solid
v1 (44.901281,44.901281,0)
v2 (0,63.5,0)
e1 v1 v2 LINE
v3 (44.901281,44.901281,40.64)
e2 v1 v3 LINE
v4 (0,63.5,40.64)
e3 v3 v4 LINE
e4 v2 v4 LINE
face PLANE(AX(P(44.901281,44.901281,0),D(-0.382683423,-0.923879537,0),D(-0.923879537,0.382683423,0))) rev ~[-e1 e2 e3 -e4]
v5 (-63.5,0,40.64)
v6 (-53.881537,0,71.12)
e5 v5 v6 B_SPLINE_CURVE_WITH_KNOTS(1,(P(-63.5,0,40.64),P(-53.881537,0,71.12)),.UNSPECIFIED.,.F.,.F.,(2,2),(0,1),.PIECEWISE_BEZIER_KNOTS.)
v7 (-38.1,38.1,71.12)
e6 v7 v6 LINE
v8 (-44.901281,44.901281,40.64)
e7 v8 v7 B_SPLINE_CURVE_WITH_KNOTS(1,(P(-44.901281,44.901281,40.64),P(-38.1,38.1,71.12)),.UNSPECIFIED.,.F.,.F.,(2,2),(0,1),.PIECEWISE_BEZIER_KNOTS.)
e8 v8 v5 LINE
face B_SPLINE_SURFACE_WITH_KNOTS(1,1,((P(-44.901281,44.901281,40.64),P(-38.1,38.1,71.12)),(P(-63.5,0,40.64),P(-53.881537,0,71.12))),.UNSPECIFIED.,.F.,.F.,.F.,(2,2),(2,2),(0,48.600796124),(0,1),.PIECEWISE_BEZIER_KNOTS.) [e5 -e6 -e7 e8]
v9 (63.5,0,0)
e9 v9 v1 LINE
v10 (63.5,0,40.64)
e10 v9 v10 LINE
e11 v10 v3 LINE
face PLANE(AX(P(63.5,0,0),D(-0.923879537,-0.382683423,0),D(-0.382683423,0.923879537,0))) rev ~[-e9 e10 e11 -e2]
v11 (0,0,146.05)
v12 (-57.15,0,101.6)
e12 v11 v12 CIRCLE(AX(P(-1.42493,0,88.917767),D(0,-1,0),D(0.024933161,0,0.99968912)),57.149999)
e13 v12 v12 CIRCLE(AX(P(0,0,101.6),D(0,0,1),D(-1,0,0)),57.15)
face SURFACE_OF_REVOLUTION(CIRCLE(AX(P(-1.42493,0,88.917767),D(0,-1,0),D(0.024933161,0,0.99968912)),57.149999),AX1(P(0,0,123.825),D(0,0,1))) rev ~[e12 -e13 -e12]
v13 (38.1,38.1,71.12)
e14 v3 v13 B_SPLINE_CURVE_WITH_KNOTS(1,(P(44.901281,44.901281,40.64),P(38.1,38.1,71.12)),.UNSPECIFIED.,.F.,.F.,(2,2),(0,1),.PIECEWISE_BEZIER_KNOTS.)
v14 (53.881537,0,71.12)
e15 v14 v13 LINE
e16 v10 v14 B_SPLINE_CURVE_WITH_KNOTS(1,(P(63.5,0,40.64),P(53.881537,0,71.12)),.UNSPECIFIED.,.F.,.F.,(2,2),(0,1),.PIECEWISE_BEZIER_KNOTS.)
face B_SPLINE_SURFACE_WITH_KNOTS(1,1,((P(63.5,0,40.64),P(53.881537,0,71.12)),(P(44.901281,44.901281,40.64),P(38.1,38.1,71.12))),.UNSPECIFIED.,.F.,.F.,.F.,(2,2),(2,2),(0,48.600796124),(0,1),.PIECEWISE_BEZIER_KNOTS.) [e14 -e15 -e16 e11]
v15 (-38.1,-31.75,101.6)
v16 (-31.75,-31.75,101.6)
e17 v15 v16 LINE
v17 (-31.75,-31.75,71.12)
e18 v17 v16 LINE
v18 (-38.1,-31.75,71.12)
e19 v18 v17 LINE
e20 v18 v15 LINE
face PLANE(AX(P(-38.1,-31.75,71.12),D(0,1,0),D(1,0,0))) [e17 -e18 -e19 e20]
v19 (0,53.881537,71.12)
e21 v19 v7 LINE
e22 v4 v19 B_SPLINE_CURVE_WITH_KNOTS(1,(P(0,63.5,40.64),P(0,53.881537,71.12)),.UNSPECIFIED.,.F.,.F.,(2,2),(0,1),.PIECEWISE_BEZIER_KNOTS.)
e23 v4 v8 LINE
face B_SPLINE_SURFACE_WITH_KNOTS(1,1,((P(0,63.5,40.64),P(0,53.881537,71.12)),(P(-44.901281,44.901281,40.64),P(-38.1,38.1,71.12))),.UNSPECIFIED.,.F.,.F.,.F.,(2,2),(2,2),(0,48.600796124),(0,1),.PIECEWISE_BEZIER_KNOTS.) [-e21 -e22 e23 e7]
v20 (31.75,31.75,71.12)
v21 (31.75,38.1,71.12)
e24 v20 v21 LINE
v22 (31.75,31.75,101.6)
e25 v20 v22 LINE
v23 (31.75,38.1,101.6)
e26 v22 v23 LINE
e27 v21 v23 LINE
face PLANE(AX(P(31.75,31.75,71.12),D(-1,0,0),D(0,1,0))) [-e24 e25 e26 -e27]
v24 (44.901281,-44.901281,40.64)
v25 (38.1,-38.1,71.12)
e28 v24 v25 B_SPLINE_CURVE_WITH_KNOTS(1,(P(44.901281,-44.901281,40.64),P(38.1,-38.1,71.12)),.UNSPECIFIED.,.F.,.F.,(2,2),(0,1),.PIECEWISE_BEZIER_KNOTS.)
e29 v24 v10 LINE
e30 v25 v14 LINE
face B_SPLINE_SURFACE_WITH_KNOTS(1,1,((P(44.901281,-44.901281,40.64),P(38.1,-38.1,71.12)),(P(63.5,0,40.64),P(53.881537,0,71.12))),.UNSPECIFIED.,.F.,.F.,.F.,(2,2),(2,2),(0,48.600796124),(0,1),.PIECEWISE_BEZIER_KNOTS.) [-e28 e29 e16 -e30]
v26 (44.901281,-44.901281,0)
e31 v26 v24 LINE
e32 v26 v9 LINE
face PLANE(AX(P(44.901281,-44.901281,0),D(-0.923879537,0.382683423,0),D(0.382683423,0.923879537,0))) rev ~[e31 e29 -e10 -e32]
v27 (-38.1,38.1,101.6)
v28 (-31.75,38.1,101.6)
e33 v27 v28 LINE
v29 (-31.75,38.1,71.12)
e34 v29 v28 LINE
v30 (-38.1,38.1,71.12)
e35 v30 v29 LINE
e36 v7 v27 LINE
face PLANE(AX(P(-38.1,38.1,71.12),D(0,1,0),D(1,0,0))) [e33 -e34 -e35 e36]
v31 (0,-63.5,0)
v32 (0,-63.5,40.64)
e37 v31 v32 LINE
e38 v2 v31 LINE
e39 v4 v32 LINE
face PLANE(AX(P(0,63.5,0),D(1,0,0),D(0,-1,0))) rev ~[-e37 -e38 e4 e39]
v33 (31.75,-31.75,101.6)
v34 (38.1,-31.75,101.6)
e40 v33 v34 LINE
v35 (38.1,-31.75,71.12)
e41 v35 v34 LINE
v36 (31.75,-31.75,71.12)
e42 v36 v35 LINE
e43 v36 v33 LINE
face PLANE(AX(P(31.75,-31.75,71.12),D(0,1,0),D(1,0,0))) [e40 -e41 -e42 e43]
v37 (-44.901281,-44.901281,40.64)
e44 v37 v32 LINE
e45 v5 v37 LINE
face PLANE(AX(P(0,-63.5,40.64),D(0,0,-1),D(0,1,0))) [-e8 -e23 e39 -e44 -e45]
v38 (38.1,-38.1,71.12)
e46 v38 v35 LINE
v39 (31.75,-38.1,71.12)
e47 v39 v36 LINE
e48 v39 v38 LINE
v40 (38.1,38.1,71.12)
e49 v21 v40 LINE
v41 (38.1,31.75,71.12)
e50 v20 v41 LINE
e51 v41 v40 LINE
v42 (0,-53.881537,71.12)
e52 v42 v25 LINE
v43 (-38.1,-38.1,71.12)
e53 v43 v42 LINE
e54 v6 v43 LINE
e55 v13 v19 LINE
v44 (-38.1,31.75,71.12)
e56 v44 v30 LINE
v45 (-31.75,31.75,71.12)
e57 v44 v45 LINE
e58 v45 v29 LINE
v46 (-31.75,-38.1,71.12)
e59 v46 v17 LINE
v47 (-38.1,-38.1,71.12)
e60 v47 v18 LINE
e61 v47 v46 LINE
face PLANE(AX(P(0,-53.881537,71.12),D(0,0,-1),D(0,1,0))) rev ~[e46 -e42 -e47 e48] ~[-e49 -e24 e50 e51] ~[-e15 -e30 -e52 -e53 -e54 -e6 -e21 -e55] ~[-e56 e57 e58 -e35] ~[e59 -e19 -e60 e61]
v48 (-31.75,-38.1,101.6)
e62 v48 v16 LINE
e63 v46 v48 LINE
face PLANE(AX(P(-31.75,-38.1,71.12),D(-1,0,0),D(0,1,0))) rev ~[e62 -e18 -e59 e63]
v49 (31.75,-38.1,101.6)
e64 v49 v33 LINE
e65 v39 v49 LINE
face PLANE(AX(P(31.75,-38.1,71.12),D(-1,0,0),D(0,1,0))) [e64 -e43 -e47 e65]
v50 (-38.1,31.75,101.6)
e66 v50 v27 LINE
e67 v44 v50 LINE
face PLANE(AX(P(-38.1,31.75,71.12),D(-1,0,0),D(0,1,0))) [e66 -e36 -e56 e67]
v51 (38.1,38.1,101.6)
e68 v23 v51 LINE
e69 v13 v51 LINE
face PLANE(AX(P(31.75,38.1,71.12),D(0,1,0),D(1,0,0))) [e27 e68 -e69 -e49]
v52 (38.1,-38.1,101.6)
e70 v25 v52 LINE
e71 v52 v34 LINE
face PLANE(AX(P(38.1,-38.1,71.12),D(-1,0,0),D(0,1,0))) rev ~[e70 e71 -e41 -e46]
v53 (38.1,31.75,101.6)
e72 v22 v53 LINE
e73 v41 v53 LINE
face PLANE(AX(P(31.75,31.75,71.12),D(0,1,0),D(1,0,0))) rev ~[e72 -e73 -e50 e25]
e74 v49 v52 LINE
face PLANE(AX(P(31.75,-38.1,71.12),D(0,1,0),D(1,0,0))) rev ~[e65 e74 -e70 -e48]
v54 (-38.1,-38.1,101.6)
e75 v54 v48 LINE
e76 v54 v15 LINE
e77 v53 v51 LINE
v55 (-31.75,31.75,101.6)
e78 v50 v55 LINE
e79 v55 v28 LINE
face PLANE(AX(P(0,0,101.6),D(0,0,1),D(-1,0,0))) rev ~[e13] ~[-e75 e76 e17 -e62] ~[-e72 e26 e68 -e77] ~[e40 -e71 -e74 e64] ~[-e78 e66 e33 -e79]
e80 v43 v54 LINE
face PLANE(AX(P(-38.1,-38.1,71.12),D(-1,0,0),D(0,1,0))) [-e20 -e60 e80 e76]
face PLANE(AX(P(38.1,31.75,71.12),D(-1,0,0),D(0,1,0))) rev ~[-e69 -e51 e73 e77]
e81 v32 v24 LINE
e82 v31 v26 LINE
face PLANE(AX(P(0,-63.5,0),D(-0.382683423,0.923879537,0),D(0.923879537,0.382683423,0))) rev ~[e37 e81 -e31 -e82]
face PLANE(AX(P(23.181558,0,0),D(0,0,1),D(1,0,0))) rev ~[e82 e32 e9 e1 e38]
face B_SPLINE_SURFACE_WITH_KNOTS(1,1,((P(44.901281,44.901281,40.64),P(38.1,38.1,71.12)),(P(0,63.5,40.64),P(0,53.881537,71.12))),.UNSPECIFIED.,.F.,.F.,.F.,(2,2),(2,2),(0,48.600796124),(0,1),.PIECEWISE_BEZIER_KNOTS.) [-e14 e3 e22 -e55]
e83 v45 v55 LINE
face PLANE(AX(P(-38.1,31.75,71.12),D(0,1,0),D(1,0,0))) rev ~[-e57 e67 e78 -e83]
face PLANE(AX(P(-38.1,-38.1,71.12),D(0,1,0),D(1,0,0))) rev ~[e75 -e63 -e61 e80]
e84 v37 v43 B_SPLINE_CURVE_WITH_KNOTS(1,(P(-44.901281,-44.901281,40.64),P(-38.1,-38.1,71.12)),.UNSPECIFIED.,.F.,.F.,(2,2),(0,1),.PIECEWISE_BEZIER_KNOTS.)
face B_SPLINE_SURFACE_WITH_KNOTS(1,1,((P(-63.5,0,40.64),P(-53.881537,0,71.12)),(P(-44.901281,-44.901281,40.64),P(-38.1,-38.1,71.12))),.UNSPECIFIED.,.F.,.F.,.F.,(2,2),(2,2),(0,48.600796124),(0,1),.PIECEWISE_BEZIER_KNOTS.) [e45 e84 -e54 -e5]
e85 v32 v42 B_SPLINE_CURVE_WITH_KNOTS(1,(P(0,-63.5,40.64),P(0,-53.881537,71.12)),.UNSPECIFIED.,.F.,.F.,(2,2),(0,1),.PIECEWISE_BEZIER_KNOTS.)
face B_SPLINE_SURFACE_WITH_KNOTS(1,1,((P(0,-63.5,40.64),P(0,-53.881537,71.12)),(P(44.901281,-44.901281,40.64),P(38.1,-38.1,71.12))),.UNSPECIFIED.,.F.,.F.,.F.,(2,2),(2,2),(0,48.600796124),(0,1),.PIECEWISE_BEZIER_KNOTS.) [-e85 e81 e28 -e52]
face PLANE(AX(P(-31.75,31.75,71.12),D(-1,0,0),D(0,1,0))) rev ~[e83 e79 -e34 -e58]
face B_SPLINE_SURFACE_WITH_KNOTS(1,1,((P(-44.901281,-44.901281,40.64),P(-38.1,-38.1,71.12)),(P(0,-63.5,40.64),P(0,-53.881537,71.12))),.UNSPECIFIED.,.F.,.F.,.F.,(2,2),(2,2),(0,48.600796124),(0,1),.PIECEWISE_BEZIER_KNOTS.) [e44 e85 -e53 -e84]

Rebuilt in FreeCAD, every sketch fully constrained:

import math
import FreeCAD as App
import Part
import Sketcher

V = App.Vector
Q = App.Units.Quantity


def add_polygon(sketch, points):
    """Adds a closed chain of lines whose ends are joined by coincident constraints."""
    first, n = sketch.GeometryCount, len(points)
    for a, b in zip(points, points[1:] + points[:1]):
        sketch.addGeometry(Part.LineSegment(App.Vector(*a, 0), App.Vector(*b, 0)), False)
    for i in range(n):
        sketch.addConstraint(Sketcher.Constraint("Coincident", first + i, 2, first + (i + 1) % n, 1))

doc = App.newDocument("Part")
body = doc.addObject("PartDesign::Body", "Body")

# Sketch on XY plane
sketch1 = doc.addObject("Sketcher::SketchObject", "Sketch")
body.addObject(sketch1)
sketch1.AttachmentSupport = (doc.XY_Plane, [""])
sketch1.MapMode = "FlatFace"
add_polygon(sketch1, [(45, 45), (0, 64), (0, -64), (45, -45), (64, 0)])  # lines 0-4
sketch1.addConstraint(Sketcher.Constraint("Vertical", 1))
sketch1.addConstraint(Sketcher.Constraint("Symmetric", 0, 2, 1, 2, -1, 1))
sketch1.addConstraint(Sketcher.Constraint("Symmetric", 2, 2, 4, 2, -1))
sketch1.addConstraint(Sketcher.Constraint("PointOnObject", 3, 2, -1))
sketch1.addConstraint(Sketcher.Constraint("Perpendicular", 0, 3))
sketch1.addConstraint(Sketcher.Constraint("Equal", 2, 3))
sketch1.addConstraint(Sketcher.Constraint("DistanceY", 1, 2, 1, 1, Q("5 in")))
sketch1.addConstraint(Sketcher.Constraint("Angle", 0, Q("157.500001 deg")))
pad1 = doc.addObject("PartDesign::Pad", "Pad")
body.addObject(pad1)
pad1.Profile = sketch1
pad1.Length = Q("1.6 in")

# Sketch on XY plane
sketch2 = doc.addObject("Sketcher::SketchObject", "Sketch001")
body.addObject(sketch2)
sketch2.AttachmentSupport = (doc.XY_Plane, [""])
sketch2.MapMode = "FlatFace"
sketch2.AttachmentOffset = App.Placement(V(0, 0, 1.6 * 25.4), App.Rotation())
add_polygon(sketch2, [(0, -64), (45, -45), (64, 0), (45, 45), (0, 64), (-45, 45), (-64, 0), (-45, -45)])  # lines 0-7
sketch2.addConstraint(Sketcher.Constraint("Symmetric", 0, 2, 4, 2, -1, 1))
sketch2.addConstraint(Sketcher.Constraint("Symmetric", 1, 2, 5, 2, -1, 1))
sketch2.addConstraint(Sketcher.Constraint("Symmetric", 2, 2, 6, 2, -1, 1))
sketch2.addConstraint(Sketcher.Constraint("Symmetric", 3, 2, 7, 2, -1, 1))
sketch2.addConstraint(Sketcher.Constraint("Symmetric", 2, 2, 4, 2, -2))
sketch2.addConstraint(Sketcher.Constraint("PointOnObject", 1, 2, -1))
sketch2.addConstraint(Sketcher.Constraint("PointOnObject", 3, 2, -2))
sketch2.addConstraint(Sketcher.Constraint("Perpendicular", 0, 2))
sketch2.addConstraint(Sketcher.Constraint("Equal", 0, 1))
sketch2.addConstraint(Sketcher.Constraint("DistanceX", 5, 2, 1, 2, Q("5 in")))
sketch2.addConstraint(Sketcher.Constraint("Angle", 0, Q("22.499999 deg")))

# Sketch on XY plane
sketch3 = doc.addObject("Sketcher::SketchObject", "Sketch002")
body.addObject(sketch3)
sketch3.AttachmentSupport = (doc.XY_Plane, [""])
sketch3.MapMode = "FlatFace"
sketch3.AttachmentOffset = App.Placement(V(0, 0, 2.8 * 25.4), App.Rotation())
add_polygon(sketch3, [(0, 54), (-38, 38), (-54, 0), (-38, -38), (0, -54), (38, -38), (54, 0), (38, 38)])  # lines 0-7
sketch3.addConstraint(Sketcher.Constraint("Symmetric", 0, 2, 4, 2, -1, 1))
sketch3.addConstraint(Sketcher.Constraint("Symmetric", 1, 2, 5, 2, -1, 1))
sketch3.addConstraint(Sketcher.Constraint("Symmetric", 2, 2, 6, 2, -1, 1))
sketch3.addConstraint(Sketcher.Constraint("Symmetric", 3, 2, 7, 2, -1, 1))
sketch3.addConstraint(Sketcher.Constraint("Symmetric", 2, 2, 4, 2, -2))
sketch3.addConstraint(Sketcher.Constraint("PointOnObject", 1, 2, -1))
sketch3.addConstraint(Sketcher.Constraint("PointOnObject", 3, 2, -2))
sketch3.addConstraint(Sketcher.Constraint("Perpendicular", 0, 2))
sketch3.addConstraint(Sketcher.Constraint("Equal", 0, 1))
sketch3.addConstraint(Sketcher.Constraint("DistanceY", 2, 2, 0, 2, Q("3 in")))
sketch3.addConstraint(Sketcher.Constraint("Angle", 0, Q("-157.5 deg")))

additiveloft = doc.addObject("PartDesign::AdditiveLoft", "AdditiveLoft")
body.addObject(additiveloft)
additiveloft.Profile = sketch2
additiveloft.Sections = [sketch3]

# Sketch on XY plane
sketch4 = doc.addObject("Sketcher::SketchObject", "Sketch003")
body.addObject(sketch4)
sketch4.AttachmentSupport = (doc.XY_Plane, [""])
sketch4.MapMode = "FlatFace"
sketch4.AttachmentOffset = App.Placement(V(0, 0, 2.8 * 25.4), App.Rotation())
add_polygon(sketch4, [(-38, 38), (-38, 32), (-32, 32), (-32, 38)])  # lines 0-3
add_polygon(sketch4, [(32, 38), (32, 32), (38, 32), (38, 38)])  # lines 4-7
add_polygon(sketch4, [(32, -32), (32, -38), (38, -38), (38, -32)])  # lines 8-11
add_polygon(sketch4, [(-38, -32), (-38, -38), (-32, -38), (-32, -32)])  # lines 12-15
sketch4.addConstraint(Sketcher.Constraint("Vertical", 0))
sketch4.addConstraint(Sketcher.Constraint("Horizontal", 1))
sketch4.addConstraint(Sketcher.Constraint("Vertical", 2))
sketch4.addConstraint(Sketcher.Constraint("Horizontal", 3))
sketch4.addConstraint(Sketcher.Constraint("Vertical", 4))
sketch4.addConstraint(Sketcher.Constraint("Horizontal", 5))
sketch4.addConstraint(Sketcher.Constraint("Vertical", 6))
sketch4.addConstraint(Sketcher.Constraint("Horizontal", 7))
sketch4.addConstraint(Sketcher.Constraint("Vertical", 8))
sketch4.addConstraint(Sketcher.Constraint("Horizontal", 9))
sketch4.addConstraint(Sketcher.Constraint("Vertical", 10))
sketch4.addConstraint(Sketcher.Constraint("Horizontal", 11))
sketch4.addConstraint(Sketcher.Constraint("Vertical", 12))
sketch4.addConstraint(Sketcher.Constraint("Horizontal", 13))
sketch4.addConstraint(Sketcher.Constraint("Vertical", 14))
sketch4.addConstraint(Sketcher.Constraint("Horizontal", 15))
sketch4.addConstraint(Sketcher.Constraint("Symmetric", 2, 2, 8, 2, -1, 1))
sketch4.addConstraint(Sketcher.Constraint("Symmetric", 0, 2, 10, 2, -1, 1))
sketch4.addConstraint(Sketcher.Constraint("Symmetric", 6, 2, 12, 2, -1, 1))
sketch4.addConstraint(Sketcher.Constraint("Symmetric", 4, 2, 14, 2, -1, 1))
sketch4.addConstraint(Sketcher.Constraint("Symmetric", 1, 2, 4, 2, -2))
sketch4.addConstraint(Sketcher.Constraint("Symmetric", 3, 2, 6, 2, -2))
sketch4.addConstraint(Sketcher.Constraint("Equal", 15, 0))
sketch4.addConstraint(Sketcher.Constraint("DistanceX", 0, 2, 5, 2, Q("3 in")))
sketch4.addConstraint(Sketcher.Constraint("DistanceY", 8, 2, 7, 2, Q("3 in")))
sketch4.addConstraint(Sketcher.Constraint("DistanceX", 1, 1, 1, 2, Q("0.25 in")))
pad2 = doc.addObject("PartDesign::Pad", "Pad001")
body.addObject(pad2)
pad2.Profile = sketch4
pad2.Length = Q("1.2 in")

# Sketch on XZ plane
sketch5 = doc.addObject("Sketcher::SketchObject", "Sketch004")
body.addObject(sketch5)
sketch5.AttachmentSupport = (doc.XZ_Plane, [""])
sketch5.MapMode = "FlatFace"
sketch5.addGeometry(Part.ArcOfCircle(Part.Circle(V(-1, 89, 0), V(0, 0, 1), 57), math.radians(89), math.radians(167)), False)
sketch5.addGeometry(Part.LineSegment(V(-57, 102, 0), V(0, 102, 0)), False)
sketch5.addGeometry(Part.LineSegment(V(0, 102, 0), V(0, 146, 0)), False)
sketch5.addConstraint(Sketcher.Constraint("Coincident", 0, 2, 1, 1))
sketch5.addConstraint(Sketcher.Constraint("Coincident", 1, 2, 2, 1))
sketch5.addConstraint(Sketcher.Constraint("Coincident", 2, 2, 0, 1))
sketch5.addConstraint(Sketcher.Constraint("Horizontal", 1))
sketch5.addConstraint(Sketcher.Constraint("Vertical", 2))
sketch5.addConstraint(Sketcher.Constraint("PointOnObject", 1, 2, -2))
sketch5.addConstraint(Sketcher.Constraint("Radius", 0, Q("2.25 in")))
sketch5.addConstraint(Sketcher.Constraint("DistanceY", -1, 1, 0, 2, Q("4 in")))
sketch5.addConstraint(Sketcher.Constraint("DistanceX", 1, 1, 1, 2, Q("2.25 in")))
sketch5.addConstraint(Sketcher.Constraint("DistanceY", 2, 1, 2, 2, Q("1.75 in")))
revolution = doc.addObject("PartDesign::Revolution", "Revolution")
body.addObject(revolution)
revolution.Profile = sketch5
revolution.ReferenceAxis = (sketch5, ["V_Axis"])
revolution.Angle = 360

doc.recompute()
